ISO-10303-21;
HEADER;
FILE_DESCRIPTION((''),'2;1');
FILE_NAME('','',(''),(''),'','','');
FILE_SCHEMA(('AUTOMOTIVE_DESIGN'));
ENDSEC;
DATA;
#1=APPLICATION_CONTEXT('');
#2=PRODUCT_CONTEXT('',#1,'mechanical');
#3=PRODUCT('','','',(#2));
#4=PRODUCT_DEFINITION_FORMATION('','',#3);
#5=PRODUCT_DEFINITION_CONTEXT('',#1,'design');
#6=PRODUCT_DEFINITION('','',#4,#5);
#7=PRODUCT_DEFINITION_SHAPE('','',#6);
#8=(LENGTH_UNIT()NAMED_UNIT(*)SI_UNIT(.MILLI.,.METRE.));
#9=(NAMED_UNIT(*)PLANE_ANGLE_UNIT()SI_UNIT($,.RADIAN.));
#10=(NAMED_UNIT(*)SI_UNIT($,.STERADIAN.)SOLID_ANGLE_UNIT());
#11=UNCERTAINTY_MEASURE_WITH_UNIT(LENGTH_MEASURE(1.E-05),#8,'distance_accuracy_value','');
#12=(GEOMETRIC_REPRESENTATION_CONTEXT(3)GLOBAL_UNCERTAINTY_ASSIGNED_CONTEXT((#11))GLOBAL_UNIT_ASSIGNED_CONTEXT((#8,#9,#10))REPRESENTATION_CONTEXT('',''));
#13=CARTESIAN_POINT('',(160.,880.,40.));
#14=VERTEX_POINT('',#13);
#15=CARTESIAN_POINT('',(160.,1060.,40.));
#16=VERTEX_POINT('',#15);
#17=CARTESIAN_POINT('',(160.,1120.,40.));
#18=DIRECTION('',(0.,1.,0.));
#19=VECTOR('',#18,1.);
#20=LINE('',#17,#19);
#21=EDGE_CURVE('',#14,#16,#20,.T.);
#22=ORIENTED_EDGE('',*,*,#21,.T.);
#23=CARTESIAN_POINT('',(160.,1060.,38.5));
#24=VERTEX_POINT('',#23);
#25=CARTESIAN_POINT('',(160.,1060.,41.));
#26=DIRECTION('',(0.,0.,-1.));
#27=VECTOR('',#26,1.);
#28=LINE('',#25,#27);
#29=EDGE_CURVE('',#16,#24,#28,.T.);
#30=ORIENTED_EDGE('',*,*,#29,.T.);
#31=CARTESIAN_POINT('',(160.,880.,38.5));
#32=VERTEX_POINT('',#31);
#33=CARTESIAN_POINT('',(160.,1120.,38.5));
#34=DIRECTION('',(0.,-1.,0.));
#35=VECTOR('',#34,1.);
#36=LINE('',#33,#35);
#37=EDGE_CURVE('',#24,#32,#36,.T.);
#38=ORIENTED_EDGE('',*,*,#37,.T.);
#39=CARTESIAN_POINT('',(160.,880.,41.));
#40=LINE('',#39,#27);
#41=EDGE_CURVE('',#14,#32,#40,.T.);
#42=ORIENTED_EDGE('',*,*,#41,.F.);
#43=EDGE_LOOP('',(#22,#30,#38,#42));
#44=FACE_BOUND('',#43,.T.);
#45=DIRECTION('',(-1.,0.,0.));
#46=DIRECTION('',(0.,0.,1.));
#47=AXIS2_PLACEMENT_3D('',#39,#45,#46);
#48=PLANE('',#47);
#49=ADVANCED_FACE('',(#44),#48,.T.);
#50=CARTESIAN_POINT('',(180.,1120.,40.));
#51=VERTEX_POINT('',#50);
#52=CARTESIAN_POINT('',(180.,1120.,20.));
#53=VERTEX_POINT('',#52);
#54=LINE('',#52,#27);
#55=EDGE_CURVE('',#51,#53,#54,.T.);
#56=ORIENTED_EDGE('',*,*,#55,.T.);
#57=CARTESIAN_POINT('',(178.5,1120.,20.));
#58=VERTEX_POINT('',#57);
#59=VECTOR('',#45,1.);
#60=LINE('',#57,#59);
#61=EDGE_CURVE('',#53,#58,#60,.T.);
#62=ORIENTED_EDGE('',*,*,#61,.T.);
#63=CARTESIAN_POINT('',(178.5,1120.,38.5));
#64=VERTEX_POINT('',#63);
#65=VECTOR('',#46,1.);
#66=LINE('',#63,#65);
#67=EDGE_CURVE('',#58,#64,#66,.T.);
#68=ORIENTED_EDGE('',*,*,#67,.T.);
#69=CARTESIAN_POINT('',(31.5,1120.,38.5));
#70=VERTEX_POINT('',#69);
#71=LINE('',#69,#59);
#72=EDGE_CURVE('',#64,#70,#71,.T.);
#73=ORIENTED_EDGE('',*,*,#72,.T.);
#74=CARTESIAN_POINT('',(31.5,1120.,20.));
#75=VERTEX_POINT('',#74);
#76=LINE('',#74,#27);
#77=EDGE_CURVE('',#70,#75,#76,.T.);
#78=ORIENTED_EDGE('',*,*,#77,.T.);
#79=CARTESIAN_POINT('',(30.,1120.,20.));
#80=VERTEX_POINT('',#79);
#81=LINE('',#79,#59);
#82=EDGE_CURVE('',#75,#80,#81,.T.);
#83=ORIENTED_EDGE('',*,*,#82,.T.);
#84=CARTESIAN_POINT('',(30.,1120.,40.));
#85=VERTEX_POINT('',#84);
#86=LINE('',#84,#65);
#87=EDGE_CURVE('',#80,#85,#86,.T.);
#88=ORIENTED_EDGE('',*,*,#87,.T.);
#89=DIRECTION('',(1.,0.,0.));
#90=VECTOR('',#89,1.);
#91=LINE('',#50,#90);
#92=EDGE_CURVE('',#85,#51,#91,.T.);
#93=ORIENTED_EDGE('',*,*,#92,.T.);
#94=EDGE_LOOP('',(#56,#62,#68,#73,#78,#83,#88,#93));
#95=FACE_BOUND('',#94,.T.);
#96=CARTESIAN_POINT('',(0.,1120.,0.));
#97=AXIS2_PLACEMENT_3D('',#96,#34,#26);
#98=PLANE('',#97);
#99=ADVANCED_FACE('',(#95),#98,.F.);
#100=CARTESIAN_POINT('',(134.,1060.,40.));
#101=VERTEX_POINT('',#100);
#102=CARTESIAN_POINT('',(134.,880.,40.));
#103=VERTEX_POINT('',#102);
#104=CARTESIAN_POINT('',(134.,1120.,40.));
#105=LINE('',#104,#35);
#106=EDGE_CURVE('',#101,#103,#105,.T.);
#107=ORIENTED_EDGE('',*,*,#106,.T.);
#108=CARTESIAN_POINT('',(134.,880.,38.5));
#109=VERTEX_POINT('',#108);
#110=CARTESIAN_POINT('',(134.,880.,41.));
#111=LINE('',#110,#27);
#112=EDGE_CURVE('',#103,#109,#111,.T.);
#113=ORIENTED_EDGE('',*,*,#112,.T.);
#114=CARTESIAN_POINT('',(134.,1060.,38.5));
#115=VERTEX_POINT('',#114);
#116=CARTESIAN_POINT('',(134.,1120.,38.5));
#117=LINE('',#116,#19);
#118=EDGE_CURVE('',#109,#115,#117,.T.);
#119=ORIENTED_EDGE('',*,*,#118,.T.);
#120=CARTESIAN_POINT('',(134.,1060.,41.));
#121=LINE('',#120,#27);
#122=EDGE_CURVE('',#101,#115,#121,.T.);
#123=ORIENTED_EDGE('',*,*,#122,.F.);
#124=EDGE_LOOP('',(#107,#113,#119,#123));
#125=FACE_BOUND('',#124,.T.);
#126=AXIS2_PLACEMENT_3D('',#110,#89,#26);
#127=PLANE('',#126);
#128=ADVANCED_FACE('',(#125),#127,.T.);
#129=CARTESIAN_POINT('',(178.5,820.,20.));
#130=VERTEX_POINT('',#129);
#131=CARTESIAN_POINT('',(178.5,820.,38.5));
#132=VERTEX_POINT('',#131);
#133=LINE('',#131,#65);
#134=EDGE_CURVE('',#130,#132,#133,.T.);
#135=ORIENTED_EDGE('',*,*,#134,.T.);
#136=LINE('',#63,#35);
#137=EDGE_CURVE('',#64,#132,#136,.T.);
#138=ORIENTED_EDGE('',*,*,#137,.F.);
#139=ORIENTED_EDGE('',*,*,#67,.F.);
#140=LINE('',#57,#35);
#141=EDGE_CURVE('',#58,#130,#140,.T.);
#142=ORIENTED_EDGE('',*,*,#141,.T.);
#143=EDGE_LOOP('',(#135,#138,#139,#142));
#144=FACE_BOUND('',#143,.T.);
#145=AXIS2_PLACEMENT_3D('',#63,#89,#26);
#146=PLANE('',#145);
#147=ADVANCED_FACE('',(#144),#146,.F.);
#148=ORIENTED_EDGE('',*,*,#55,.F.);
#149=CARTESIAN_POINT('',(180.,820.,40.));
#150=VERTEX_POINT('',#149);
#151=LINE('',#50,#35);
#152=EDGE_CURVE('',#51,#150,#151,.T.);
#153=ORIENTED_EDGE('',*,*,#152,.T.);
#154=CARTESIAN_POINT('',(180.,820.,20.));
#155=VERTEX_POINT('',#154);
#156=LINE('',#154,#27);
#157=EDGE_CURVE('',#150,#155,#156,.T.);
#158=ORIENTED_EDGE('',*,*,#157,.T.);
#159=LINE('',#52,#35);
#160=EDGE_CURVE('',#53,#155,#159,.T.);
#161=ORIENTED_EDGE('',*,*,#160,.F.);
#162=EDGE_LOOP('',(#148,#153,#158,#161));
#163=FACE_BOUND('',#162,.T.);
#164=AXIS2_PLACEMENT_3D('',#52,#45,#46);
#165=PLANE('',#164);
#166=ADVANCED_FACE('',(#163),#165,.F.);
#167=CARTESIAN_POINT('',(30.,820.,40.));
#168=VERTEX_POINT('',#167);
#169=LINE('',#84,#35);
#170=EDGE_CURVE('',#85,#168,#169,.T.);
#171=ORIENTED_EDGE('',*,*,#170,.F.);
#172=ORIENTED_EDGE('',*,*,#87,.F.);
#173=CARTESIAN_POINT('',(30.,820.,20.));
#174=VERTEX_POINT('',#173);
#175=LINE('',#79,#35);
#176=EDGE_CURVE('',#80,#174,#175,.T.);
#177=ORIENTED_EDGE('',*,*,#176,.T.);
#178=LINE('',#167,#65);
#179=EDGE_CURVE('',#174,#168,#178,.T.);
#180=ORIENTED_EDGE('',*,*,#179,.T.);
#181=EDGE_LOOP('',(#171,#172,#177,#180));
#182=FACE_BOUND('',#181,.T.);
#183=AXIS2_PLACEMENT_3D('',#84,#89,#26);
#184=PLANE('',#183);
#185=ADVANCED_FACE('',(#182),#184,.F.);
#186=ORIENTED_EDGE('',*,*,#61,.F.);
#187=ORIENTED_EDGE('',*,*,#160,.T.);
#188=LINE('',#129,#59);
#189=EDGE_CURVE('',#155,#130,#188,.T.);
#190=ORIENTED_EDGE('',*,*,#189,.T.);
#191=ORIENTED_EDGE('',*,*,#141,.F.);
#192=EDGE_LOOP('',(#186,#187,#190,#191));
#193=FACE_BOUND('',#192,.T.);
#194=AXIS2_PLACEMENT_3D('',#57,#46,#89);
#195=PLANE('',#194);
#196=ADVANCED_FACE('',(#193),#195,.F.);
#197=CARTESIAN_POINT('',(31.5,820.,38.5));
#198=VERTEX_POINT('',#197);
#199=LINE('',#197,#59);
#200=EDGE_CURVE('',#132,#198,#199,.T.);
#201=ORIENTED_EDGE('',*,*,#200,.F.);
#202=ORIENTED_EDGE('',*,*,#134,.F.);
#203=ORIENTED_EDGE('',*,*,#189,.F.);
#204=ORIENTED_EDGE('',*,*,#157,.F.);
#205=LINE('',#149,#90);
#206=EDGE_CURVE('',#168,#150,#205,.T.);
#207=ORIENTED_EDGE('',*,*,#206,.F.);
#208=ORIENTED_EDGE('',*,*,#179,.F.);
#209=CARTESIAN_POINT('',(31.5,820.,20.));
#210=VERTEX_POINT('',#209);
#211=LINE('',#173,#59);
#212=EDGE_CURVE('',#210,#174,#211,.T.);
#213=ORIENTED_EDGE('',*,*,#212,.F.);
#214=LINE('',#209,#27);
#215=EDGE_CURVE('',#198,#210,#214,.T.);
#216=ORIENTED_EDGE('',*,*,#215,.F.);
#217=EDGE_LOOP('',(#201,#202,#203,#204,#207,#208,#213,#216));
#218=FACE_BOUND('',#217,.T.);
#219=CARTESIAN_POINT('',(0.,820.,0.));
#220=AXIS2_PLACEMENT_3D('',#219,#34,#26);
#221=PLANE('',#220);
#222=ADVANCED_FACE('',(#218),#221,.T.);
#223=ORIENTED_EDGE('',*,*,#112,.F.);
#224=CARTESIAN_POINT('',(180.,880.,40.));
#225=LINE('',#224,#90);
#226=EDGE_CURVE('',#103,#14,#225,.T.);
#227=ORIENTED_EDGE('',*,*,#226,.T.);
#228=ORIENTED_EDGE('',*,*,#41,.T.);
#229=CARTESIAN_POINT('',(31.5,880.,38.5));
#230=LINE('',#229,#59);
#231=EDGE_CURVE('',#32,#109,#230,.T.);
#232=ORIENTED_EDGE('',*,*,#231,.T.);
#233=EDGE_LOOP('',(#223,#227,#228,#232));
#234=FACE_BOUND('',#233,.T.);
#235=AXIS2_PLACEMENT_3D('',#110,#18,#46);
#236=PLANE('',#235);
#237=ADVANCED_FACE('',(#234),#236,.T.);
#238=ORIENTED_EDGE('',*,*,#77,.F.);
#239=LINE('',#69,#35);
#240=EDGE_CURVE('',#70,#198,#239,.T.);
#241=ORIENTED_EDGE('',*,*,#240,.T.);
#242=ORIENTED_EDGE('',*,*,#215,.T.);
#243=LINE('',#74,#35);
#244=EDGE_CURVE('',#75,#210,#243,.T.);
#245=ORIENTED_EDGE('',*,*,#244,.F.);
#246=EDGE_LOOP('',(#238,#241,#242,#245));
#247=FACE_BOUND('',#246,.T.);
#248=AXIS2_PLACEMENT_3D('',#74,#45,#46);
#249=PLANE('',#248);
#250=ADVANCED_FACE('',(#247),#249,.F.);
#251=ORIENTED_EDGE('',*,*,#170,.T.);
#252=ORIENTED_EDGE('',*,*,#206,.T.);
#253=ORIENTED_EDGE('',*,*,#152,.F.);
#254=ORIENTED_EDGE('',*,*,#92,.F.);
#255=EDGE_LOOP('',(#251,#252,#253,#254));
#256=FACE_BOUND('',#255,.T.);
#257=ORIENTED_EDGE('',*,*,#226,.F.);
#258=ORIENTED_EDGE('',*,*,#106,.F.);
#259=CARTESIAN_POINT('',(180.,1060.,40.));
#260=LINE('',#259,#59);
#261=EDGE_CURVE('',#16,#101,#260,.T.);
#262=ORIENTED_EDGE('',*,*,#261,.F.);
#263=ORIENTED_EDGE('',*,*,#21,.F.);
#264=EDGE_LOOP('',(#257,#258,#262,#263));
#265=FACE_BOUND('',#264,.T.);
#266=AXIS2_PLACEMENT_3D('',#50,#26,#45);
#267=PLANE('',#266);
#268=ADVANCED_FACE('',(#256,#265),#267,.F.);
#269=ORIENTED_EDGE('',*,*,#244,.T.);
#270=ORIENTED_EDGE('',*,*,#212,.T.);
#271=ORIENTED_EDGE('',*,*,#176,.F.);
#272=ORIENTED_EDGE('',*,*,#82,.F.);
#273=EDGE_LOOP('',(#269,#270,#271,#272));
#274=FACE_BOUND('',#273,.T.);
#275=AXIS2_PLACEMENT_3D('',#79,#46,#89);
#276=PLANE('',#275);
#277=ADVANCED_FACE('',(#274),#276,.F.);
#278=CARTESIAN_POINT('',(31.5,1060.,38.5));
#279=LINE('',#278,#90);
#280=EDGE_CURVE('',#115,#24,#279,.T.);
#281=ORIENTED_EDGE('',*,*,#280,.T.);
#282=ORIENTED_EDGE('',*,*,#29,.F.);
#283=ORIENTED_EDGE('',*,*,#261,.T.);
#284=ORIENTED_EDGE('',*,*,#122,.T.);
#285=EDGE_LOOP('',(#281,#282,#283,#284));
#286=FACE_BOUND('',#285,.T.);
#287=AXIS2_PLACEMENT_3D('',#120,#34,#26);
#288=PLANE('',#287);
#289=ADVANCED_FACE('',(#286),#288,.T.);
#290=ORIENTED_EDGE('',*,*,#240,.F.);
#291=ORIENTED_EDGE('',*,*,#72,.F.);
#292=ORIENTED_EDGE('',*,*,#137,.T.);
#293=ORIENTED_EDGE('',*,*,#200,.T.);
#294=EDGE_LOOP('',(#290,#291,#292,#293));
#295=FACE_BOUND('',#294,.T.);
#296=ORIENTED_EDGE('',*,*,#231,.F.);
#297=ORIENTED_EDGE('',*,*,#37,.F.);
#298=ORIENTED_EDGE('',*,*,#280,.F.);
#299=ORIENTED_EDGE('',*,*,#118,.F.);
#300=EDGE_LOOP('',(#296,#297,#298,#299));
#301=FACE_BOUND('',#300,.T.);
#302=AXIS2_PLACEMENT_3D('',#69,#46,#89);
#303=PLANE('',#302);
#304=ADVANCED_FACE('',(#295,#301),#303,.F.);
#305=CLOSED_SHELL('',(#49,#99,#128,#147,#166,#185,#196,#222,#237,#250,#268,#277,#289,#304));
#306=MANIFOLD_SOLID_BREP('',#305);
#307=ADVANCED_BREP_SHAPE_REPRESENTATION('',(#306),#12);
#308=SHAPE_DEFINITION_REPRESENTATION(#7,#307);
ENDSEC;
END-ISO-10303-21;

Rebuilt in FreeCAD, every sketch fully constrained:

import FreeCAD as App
import Part
import Sketcher
from FreeCAD import Vector


def add_polygon(sketch, points):
    """Adds a closed chain of lines whose ends are joined by coincident constraints."""
    first, n = sketch.GeometryCount, len(points)
    for a, b in zip(points, points[1:] + points[:1]):
        sketch.addGeometry(Part.LineSegment(App.Vector(*a, 0), App.Vector(*b, 0)), False)
    for i in range(n):
        sketch.addConstraint(Sketcher.Constraint("Coincident", first + i, 2, first + (i + 1) % n, 1))

doc = App.newDocument("Part")
body = doc.addObject("PartDesign::Body", "Body")

# Sketch on XZ plane
sketch1 = body.newObject("Sketcher::SketchObject", "Sketch")
sketch1.AttachmentSupport = (doc.getObject("XZ_Plane"), [""])
sketch1.MapMode = "FlatFace"
sketch1.AttachmentOffset = App.Placement(Vector(0, 0, -820), App.Rotation())
add_polygon(sketch1, [(30, 20), (30, 40), (180, 40), (180, 20), (178.5, 20), (178.5, 38.5), (31.5, 38.5), (31.5, 20)])  # lines 0-7
sketch1.addConstraint(Sketcher.Constraint("Vertical", 0))
sketch1.addConstraint(Sketcher.Constraint("Horizontal", 1))
sketch1.addConstraint(Sketcher.Constraint("Vertical", 2))
sketch1.addConstraint(Sketcher.Constraint("Horizontal", 3))
sketch1.addConstraint(Sketcher.Constraint("Vertical", 4))
sketch1.addConstraint(Sketcher.Constraint("Horizontal", 5))
sketch1.addConstraint(Sketcher.Constraint("Vertical", 6))
sketch1.addConstraint(Sketcher.Constraint("Horizontal", 7))
sketch1.addConstraint(Sketcher.Constraint("Horizontal", 3, 2, 6, 2))
sketch1.addConstraint(Sketcher.Constraint("Equal", 3, 7))
sketch1.addConstraint(Sketcher.Constraint("DistanceX", 1, 1, 1, 2, 150.0))
sketch1.addConstraint(Sketcher.Constraint("DistanceX", 5, 2, 5, 1, 147.0))
sketch1.addConstraint(Sketcher.Constraint("DistanceY", 0, 1, 0, 2, 20.0))
sketch1.addConstraint(Sketcher.Constraint("DistanceY", 4, 1, 4, 2, 18.5))
sketch1.addConstraint(Sketcher.Constraint("DistanceX", -1, 1, 0, 2, 30.0))
sketch1.addConstraint(Sketcher.Constraint("DistanceY", -1, 1, 0, 2, 40.0))
pad1 = body.newObject("PartDesign::Pad", "Pad")
pad1.Profile = sketch1
pad1.Length = 300
pad1.Reversed = True

# Sketch on XY plane
sketch2 = body.newObject("Sketcher::SketchObject", "Sketch001")
sketch2.AttachmentSupport = (doc.getObject("XY_Plane"), [""])
sketch2.MapMode = "FlatFace"
sketch2.AttachmentOffset = App.Placement(Vector(0, 0, 27), App.Rotation())
add_polygon(sketch2, [(134, 1060), (134, 880), (160, 880), (160, 1060)])  # lines 0-3
sketch2.addConstraint(Sketcher.Constraint("Vertical", 0))
sketch2.addConstraint(Sketcher.Constraint("Horizontal", 1))
sketch2.addConstraint(Sketcher.Constraint("Vertical", 2))
sketch2.addConstraint(Sketcher.Constraint("Horizontal", 3))
sketch2.addConstraint(Sketcher.Constraint("DistanceX", 1, 1, 1, 2, 26.0))
sketch2.addConstraint(Sketcher.Constraint("DistanceY", 0, 2, 0, 1, 180.0))
sketch2.addConstraint(Sketcher.Constraint("DistanceX", -1, 1, 0, 2, 134.0))
sketch2.addConstraint(Sketcher.Constraint("DistanceY", -1, 1, 0, 2, 880.0))
pocket1 = body.newObject("PartDesign::Pocket", "Pocket")
pocket1.Profile = sketch2
pocket1.Length = 14
pocket1.Reversed = True

doc.recompute()
